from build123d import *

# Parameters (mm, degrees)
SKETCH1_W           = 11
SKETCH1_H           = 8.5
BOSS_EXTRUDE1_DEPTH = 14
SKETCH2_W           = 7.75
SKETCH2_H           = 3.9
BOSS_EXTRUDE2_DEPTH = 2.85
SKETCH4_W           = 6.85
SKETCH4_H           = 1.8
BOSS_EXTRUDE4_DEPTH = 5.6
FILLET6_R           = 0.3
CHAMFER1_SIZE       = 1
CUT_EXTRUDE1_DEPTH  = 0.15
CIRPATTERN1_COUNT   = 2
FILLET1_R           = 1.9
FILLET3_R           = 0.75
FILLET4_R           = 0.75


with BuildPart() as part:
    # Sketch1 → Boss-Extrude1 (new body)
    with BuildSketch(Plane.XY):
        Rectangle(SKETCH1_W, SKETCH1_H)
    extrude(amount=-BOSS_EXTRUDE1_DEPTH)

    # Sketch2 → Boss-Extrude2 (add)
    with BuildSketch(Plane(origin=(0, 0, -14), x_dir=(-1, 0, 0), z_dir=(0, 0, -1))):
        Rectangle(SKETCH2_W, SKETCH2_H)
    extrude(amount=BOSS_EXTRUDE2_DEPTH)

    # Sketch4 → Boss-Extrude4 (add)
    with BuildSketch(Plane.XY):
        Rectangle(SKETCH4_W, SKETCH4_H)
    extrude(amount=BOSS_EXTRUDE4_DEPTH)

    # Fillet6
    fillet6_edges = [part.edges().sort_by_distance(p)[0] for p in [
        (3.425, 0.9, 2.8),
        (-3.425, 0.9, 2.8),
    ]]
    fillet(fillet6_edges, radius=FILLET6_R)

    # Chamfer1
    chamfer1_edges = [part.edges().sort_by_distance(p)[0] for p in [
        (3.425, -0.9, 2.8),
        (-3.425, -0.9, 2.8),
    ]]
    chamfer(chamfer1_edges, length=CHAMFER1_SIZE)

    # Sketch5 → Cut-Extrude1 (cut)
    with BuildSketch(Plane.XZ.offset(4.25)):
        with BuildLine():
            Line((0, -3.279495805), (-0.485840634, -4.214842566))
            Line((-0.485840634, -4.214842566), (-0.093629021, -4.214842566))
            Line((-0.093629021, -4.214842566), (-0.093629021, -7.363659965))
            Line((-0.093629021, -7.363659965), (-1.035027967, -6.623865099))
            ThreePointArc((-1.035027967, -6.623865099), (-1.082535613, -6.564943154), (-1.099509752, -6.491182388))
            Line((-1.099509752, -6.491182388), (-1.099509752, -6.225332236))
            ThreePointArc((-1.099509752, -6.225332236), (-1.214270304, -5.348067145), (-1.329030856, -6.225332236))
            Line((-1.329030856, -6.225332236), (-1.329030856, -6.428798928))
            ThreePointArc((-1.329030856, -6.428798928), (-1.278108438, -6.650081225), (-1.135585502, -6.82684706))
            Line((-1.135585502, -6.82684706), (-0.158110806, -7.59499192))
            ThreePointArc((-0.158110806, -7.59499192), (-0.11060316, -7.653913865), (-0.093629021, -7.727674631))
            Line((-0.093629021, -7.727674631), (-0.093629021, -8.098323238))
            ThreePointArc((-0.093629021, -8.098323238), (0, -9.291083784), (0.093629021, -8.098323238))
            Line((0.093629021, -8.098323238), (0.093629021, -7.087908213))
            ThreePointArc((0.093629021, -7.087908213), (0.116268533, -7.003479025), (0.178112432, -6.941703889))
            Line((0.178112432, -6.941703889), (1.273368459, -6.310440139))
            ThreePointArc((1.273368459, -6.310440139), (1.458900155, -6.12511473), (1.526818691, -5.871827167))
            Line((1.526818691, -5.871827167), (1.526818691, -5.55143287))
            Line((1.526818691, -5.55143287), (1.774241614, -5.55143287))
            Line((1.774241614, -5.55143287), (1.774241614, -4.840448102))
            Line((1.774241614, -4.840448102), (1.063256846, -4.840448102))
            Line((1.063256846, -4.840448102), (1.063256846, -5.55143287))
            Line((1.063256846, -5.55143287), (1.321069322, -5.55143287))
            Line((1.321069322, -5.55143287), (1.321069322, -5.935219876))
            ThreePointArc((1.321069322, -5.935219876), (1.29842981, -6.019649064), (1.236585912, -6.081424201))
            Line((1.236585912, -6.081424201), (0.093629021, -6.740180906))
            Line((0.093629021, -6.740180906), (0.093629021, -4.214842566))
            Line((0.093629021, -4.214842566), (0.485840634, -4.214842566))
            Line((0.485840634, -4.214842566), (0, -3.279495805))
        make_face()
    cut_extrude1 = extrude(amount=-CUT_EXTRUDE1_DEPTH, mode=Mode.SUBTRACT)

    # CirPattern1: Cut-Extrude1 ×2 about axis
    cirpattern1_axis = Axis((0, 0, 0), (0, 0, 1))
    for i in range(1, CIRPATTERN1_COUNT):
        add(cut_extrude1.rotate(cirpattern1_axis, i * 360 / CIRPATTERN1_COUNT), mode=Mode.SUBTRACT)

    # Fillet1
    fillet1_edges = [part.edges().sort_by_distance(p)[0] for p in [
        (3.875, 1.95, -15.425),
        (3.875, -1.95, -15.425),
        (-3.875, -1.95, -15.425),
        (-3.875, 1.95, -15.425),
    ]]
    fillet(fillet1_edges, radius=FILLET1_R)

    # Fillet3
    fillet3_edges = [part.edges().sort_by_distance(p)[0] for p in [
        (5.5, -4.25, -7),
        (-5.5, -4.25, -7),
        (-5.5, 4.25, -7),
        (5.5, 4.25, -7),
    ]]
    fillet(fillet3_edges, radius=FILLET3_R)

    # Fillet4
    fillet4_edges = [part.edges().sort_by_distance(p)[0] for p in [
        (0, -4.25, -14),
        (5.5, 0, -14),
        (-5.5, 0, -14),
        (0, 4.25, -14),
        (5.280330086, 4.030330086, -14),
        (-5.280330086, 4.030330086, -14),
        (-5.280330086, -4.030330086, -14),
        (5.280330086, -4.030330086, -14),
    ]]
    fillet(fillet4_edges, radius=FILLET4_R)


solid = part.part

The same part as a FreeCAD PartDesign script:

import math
import FreeCAD as App
import Part
import Sketcher
from FreeCAD import Vector


def edges_at(feature, points):
    """Names of the edges that pass closest to the given points."""
    edges = feature.Shape.Edges
    near = lambda p: min(range(len(edges)), key=lambda i: edges[i].distToShape(Part.Vertex(*p))[0])
    return sorted({f"Edge{near(p) + 1}" for p in points})

doc = App.newDocument("Part")
params = doc.addObject("Spreadsheet::Sheet", "Params")
for row, (alias, value) in enumerate([
    ("sketch1_width", "11 mm"),
    ("sketch1_height", "8.5 mm"),
    ("pad1_length", "14 mm"),
    ("sketch2_height", "3.9 mm"),
    ("sketch2_width", "7.75 mm"),
    ("pad2_length", "2.85 mm"),
    ("sketch3_height", "1.8 mm"),
    ("sketch3_width", "6.85 mm"),
    ("pad3_length", "5.6 mm"),
    ("fillet_radius", "0.3 mm"),
    ("chamfer_size", "1 mm"),
    ("pocket1_length", "0.15 mm"),
    ("fillet2_radius", "1.9 mm"),
    ("fillet3_radius", "0.75 mm"),
    ("fillet4_radius", "0.75 mm"),
], start=1):
    params.set(f"A{row}", alias)
    params.set(f"B{row}", "=" + value)
    params.setAlias(f"B{row}", alias)

body = doc.addObject("PartDesign::Body", "Body")

# Sketch on XY plane
sketch1 = body.newObject("Sketcher::SketchObject", "Sketch")
sketch1.AttachmentSupport = (doc.getObject("XY_Plane"), [""])
sketch1.MapMode = "FlatFace"
sketch1.addGeometry(Part.LineSegment(Vector(-5.5, 4.25, 0), Vector(-5.5, -4.25, 0)), False)
sketch1.addGeometry(Part.LineSegment(Vector(-5.5, -4.25, 0), Vector(5.5, -4.25, 0)), False)
sketch1.addGeometry(Part.LineSegment(Vector(5.5, -4.25, 0), Vector(5.5, 4.25, 0)), False)
sketch1.addGeometry(Part.LineSegment(Vector(5.5, 4.25, 0), Vector(-5.5, 4.25, 0)), False)
sketch1.addConstraint(Sketcher.Constraint("Coincident", 0, 2, 1, 1))
sketch1.addConstraint(Sketcher.Constraint("Coincident", 1, 2, 2, 1))
sketch1.addConstraint(Sketcher.Constraint("Coincident", 2, 2, 3, 1))
sketch1.addConstraint(Sketcher.Constraint("Coincident", 3, 2, 0, 1))
sketch1.addConstraint(Sketcher.Constraint("Vertical", 0))
sketch1.addConstraint(Sketcher.Constraint("Horizontal", 1))
sketch1.addConstraint(Sketcher.Constraint("Vertical", 2))
sketch1.addConstraint(Sketcher.Constraint("Horizontal", 3))
sketch1.addConstraint(Sketcher.Constraint("Symmetric", 0, 2, 2, 2, -1, 1))
sketch1.addConstraint(Sketcher.Constraint("DistanceX", 1, 1, 1, 2, 11.0))
sketch1.addConstraint(Sketcher.Constraint("DistanceY", 0, 2, 0, 1, 8.5))
sketch1.setExpression("Constraints[9]", "Params.sketch1_width")
sketch1.setExpression("Constraints[10]", "Params.sketch1_height")
pad1 = body.newObject("PartDesign::Pad", "Pad")
pad1.Profile = sketch1
pad1.setExpression("Length", "Params.pad1_length")
pad1.Reversed = True

# Sketch on XY plane
sketch2 = body.newObject("Sketcher::SketchObject", "Sketch001")
sketch2.AttachmentSupport = (doc.getObject("XY_Plane"), [""])
sketch2.MapMode = "FlatFace"
sketch2.AttachmentOffset = App.Placement(Vector(0, 0, -14), App.Rotation())
sketch2.addGeometry(Part.LineSegment(Vector(3.875, 1.95, 0), Vector(3.875, -1.95, 0)), False)
sketch2.addGeometry(Part.LineSegment(Vector(3.875, -1.95, 0), Vector(-3.875, -1.95, 0)), False)
sketch2.addGeometry(Part.LineSegment(Vector(-3.875, -1.95, 0), Vector(-3.875, 1.95, 0)), False)
sketch2.addGeometry(Part.LineSegment(Vector(-3.875, 1.95, 0), Vector(3.875, 1.95, 0)), False)
sketch2.addConstraint(Sketcher.Constraint("Coincident", 0, 2, 1, 1))
sketch2.addConstraint(Sketcher.Constraint("Coincident", 1, 2, 2, 1))
sketch2.addConstraint(Sketcher.Constraint("Coincident", 2, 2, 3, 1))
sketch2.addConstraint(Sketcher.Constraint("Coincident", 3, 2, 0, 1))
sketch2.addConstraint(Sketcher.Constraint("Vertical", 0))
sketch2.addConstraint(Sketcher.Constraint("Horizontal", 1))
sketch2.addConstraint(Sketcher.Constraint("Vertical", 2))
sketch2.addConstraint(Sketcher.Constraint("Horizontal", 3))
sketch2.addConstraint(Sketcher.Constraint("Symmetric", 0, 2, 2, 2, -1, 1))
sketch2.addConstraint(Sketcher.Constraint("DistanceY", 0, 2, 0, 1, 3.9))
sketch2.addConstraint(Sketcher.Constraint("DistanceX", 1, 2, 1, 1, 7.75))
sketch2.setExpression("Constraints[9]", "Params.sketch2_height")
sketch2.setExpression("Constraints[10]", "Params.sketch2_width")
pad2 = body.newObject("PartDesign::Pad", "Pad001")
pad2.Profile = sketch2
pad2.setExpression("Length", "Params.pad2_length")
pad2.Reversed = True

# Sketch on XY plane
sketch3 = body.newObject("Sketcher::SketchObject", "Sketch002")
sketch3.AttachmentSupport = (doc.getObject("XY_Plane"), [""])
sketch3.MapMode = "FlatFace"
sketch3.addGeometry(Part.LineSegment(Vector(-3.425, 0.9, 0), Vector(-3.425, -0.9, 0)), False)
sketch3.addGeometry(Part.LineSegment(Vector(-3.425, -0.9, 0), Vector(3.425, -0.9, 0)), False)
sketch3.addGeometry(Part.LineSegment(Vector(3.425, -0.9, 0), Vector(3.425, 0.9, 0)), False)
sketch3.addGeometry(Part.LineSegment(Vector(3.425, 0.9, 0), Vector(-3.425, 0.9, 0)), False)
sketch3.addConstraint(Sketcher.Constraint("Coincident", 0, 2, 1, 1))
sketch3.addConstraint(Sketcher.Constraint("Coincident", 1, 2, 2, 1))
sketch3.addConstraint(Sketcher.Constraint("Coincident", 2, 2, 3, 1))
sketch3.addConstraint(Sketcher.Constraint("Coincident", 3, 2, 0, 1))
sketch3.addConstraint(Sketcher.Constraint("Vertical", 0))
sketch3.addConstraint(Sketcher.Constraint("Horizontal", 1))
sketch3.addConstraint(Sketcher.Constraint("Vertical", 2))
sketch3.addConstraint(Sketcher.Constraint("Horizontal", 3))
sketch3.addConstraint(Sketcher.Constraint("Symmetric", 0, 2, 2, 2, -1, 1))
sketch3.addConstraint(Sketcher.Constraint("DistanceY", 0, 2, 0, 1, 1.8))
sketch3.addConstraint(Sketcher.Constraint("DistanceX", 1, 1, 1, 2, 6.85))
sketch3.setExpression("Constraints[9]", "Params.sketch3_height")
sketch3.setExpression("Constraints[10]", "Params.sketch3_width")
pad3 = body.newObject("PartDesign::Pad", "Pad002")
pad3.Profile = sketch3
pad3.setExpression("Length", "Params.pad3_length")
doc.recompute()

fillet = body.newObject("PartDesign::Fillet", "Fillet")
fillet.Base = (pad3, edges_at(pad3, [(3.425, 0.9, 2.8), (-3.425, 0.9, 2.8)]))
fillet.setExpression("Radius", "Params.fillet_radius")
doc.recompute()

chamfer = body.newObject("PartDesign::Chamfer", "Chamfer")
chamfer.Base = (fillet, edges_at(fillet, [(3.425, -0.9, 2.8), (-3.425, -0.9, 2.8)]))
chamfer.setExpression("Size", "Params.chamfer_size")

# Sketch on XZ plane
sketch4 = body.newObject("Sketcher::SketchObject", "Sketch003")
sketch4.AttachmentSupport = (doc.getObject("XZ_Plane"), [""])
sketch4.MapMode = "FlatFace"
sketch4.AttachmentOffset = App.Placement(Vector(0, 0, 4.25), App.Rotation())
sketch4.addGeometry(Part.LineSegment(Vector(0, -3.279496, 0), Vector(-0.485841, -4.214843, 0)), False)
sketch4.addGeometry(Part.LineSegment(Vector(-0.485841, -4.214843, 0), Vector(-0.093629, -4.214843, 0)), False)
sketch4.addGeometry(Part.LineSegment(Vector(-0.093629, -4.214843, 0), Vector(-0.093629, -7.36366, 0)), False)
sketch4.addGeometry(Part.LineSegment(Vector(-0.093629, -7.36366, 0), Vector(-1.035028, -6.623865, 0)), False)
sketch4.addGeometry(Part.ArcOfCircle(Part.Circle(Vector(-0.93076, -6.491182, 0), Vector(0, 0, 1), 0.16875), math.radians(180), math.radians(231.838098)), False)
sketch4.addGeometry(Part.LineSegment(Vector(-1.09951, -6.491182, 0), Vector(-1.09951, -6.225332, 0)), False)
sketch4.addGeometry(Part.ArcOfCircle(Part.Circle(Vector(-1.21427, -5.794206, 0), Vector(0, 0, 1), 0.446139), math.radians(-75.094202), math.radians(255.094202)), False)
sketch4.addGeometry(Part.LineSegment(Vector(-1.329031, -6.225332, 0), Vector(-1.329031, -6.428799, 0)), False)
sketch4.addGeometry(Part.ArcOfCircle(Part.Circle(Vector(-0.822781, -6.428799, 0), Vector(0, 0, 1), 0.50625), math.radians(-180), math.radians(-128.161903)), False)
sketch4.addGeometry(Part.LineSegment(Vector(-1.135586, -6.826847, 0), Vector(-0.158111, -7.594992, 0)), False)
sketch4.addGeometry(Part.ArcOfCircle(Part.Circle(Vector(-0.262379, -7.727675, 0), Vector(0, 0, 1), 0.16875), math.radians(0), math.radians(51.838098)), False)
sketch4.addGeometry(Part.LineSegment(Vector(-0.093629, -7.727675, 0), Vector(-0.093629, -8.098323, 0)), False)
sketch4.addGeometry(Part.ArcOfCircle(Part.Circle(Vector(0, -8.691029, 0), Vector(0, 0, 1), 0.600055), math.radians(98.976772), math.radians(441.023228)), False)
sketch4.addGeometry(Part.LineSegment(Vector(0.093629, -8.098323, 0), Vector(0.093629, -7.087908, 0)), False)
sketch4.addGeometry(Part.ArcOfCircle(Part.Circle(Vector(0.262379, -7.087908, 0), Vector(0, 0, 1), 0.16875), math.radians(119.957506), math.radians(180)), False)
sketch4.addGeometry(Part.LineSegment(Vector(0.178112, -6.941704, 0), Vector(1.273368, -6.31044, 0)), False)
sketch4.addGeometry(Part.ArcOfCircle(Part.Circle(Vector(1.020569, -5.871827, 0), Vector(0, 0, 1), 0.50625), math.radians(-60.042494), math.radians(0)), False)
sketch4.addGeometry(Part.LineSegment(Vector(1.526819, -5.871827, 0), Vector(1.526819, -5.551433, 0)), False)
sketch4.addGeometry(Part.LineSegment(Vector(1.526819, -5.551433, 0), Vector(1.774242, -5.551433, 0)), False)
sketch4.addGeometry(Part.LineSegment(Vector(1.774242, -5.551433, 0), Vector(1.774242, -4.840448, 0)), False)
sketch4.addGeometry(Part.LineSegment(Vector(1.774242, -4.840448, 0), Vector(1.063257, -4.840448, 0)), False)
sketch4.addGeometry(Part.LineSegment(Vector(1.063257, -4.840448, 0), Vector(1.063257, -5.551433, 0)), False)
sketch4.addGeometry(Part.LineSegment(Vector(1.063257, -5.551433, 0), Vector(1.321069, -5.551433, 0)), False)
sketch4.addGeometry(Part.LineSegment(Vector(1.321069, -5.551433, 0), Vector(1.321069, -5.93522, 0)), False)
sketch4.addGeometry(Part.ArcOfCircle(Part.Circle(Vector(1.152319, -5.93522, 0), Vector(0, 0, 1), 0.16875), math.radians(-60.042493), math.radians(0)), False)
sketch4.addGeometry(Part.LineSegment(Vector(1.236586, -6.081424, 0), Vector(0.093629, -6.740181, 0)), False)
sketch4.addGeometry(Part.LineSegment(Vector(0.093629, -6.740181, 0), Vector(0.093629, -4.214843, 0)), False)
sketch4.addGeometry(Part.LineSegment(Vector(0.093629, -4.214843, 0), Vector(0.485841, -4.214843, 0)), False)
sketch4.addGeometry(Part.LineSegment(Vector(0.485841, -4.214843, 0), Vector(0, -3.279496, 0)), False)
sketch4.addConstraint(Sketcher.Constraint("Coincident", 0, 2, 1, 1))
sketch4.addConstraint(Sketcher.Constraint("Coincident", 1, 2, 2, 1))
sketch4.addConstraint(Sketcher.Constraint("Coincident", 2, 2, 3, 1))
sketch4.addConstraint(Sketcher.Constraint("Tangent", 3, 2, 4, 2))
sketch4.addConstraint(Sketcher.Constraint("Tangent", 4, 1, 5, 1))
sketch4.addConstraint(Sketcher.Constraint("Coincident", 5, 2, 6, 1))
sketch4.addConstraint(Sketcher.Constraint("Coincident", 6, 2, 7, 1))
sketch4.addConstraint(Sketcher.Constraint("Tangent", 7, 2, 8, 1))
sketch4.addConstraint(Sketcher.Constraint("Tangent", 8, 2, 9, 1))
sketch4.addConstraint(Sketcher.Constraint("Tangent", 9, 2, 10, 2))
sketch4.addConstraint(Sketcher.Constraint("Tangent", 10, 1, 11, 1))
sketch4.addConstraint(Sketcher.Constraint("Coincident", 11, 2, 12, 1))
sketch4.addConstraint(Sketcher.Constraint("Coincident", 12, 2, 13, 1))
sketch4.addConstraint(Sketcher.Constraint("Tangent", 13, 2, 14, 2))
sketch4.addConstraint(Sketcher.Constraint("Tangent", 14, 1, 15, 1))
sketch4.addConstraint(Sketcher.Constraint("Tangent", 15, 2, 16, 1))
sketch4.addConstraint(Sketcher.Constraint("Tangent", 16, 2, 17, 1))
sketch4.addConstraint(Sketcher.Constraint("Coincident", 17, 2, 18, 1))
sketch4.addConstraint(Sketcher.Constraint("Coincident", 18, 2, 19, 1))
sketch4.addConstraint(Sketcher.Constraint("Coincident", 19, 2, 20, 1))
sketch4.addConstraint(Sketcher.Constraint("Coincident", 20, 2, 21, 1))
sketch4.addConstraint(Sketcher.Constraint("Coincident", 21, 2, 22, 1))
sketch4.addConstraint(Sketcher.Constraint("Coincident", 22, 2, 23, 1))
sketch4.addConstraint(Sketcher.Constraint("Tangent", 23, 2, 24, 2))
sketch4.addConstraint(Sketcher.Constraint("Tangent", 24, 1, 25, 1))
sketch4.addConstraint(Sketcher.Constraint("Coincident", 25, 2, 26, 1))
sketch4.addConstraint(Sketcher.Constraint("Coincident", 26, 2, 27, 1))
sketch4.addConstraint(Sketcher.Constraint("Coincident", 27, 2, 28, 1))
sketch4.addConstraint(Sketcher.Constraint("Coincident", 28, 2, 0, 1))
sketch4.addConstraint(Sketcher.Constraint("Horizontal", 1))
sketch4.addConstraint(Sketcher.Constraint("Vertical", 2))
sketch4.addConstraint(Sketcher.Constraint("Vertical", 5))
sketch4.addConstraint(Sketcher.Constraint("Vertical", 7))
sketch4.addConstraint(Sketcher.Constraint("Vertical", 11))
sketch4.addConstraint(Sketcher.Constraint("Vertical", 13))
sketch4.addConstraint(Sketcher.Constraint("Vertical", 17))
sketch4.addConstraint(Sketcher.Constraint("Horizontal", 18))
sketch4.addConstraint(Sketcher.Constraint("Vertical", 19))
sketch4.addConstraint(Sketcher.Constraint("Horizontal", 20))
sketch4.addConstraint(Sketcher.Constraint("Vertical", 21))
sketch4.addConstraint(Sketcher.Constraint("Horizontal", 22))
sketch4.addConstraint(Sketcher.Constraint("Vertical", 23))
sketch4.addConstraint(Sketcher.Constraint("Vertical", 26))
sketch4.addConstraint(Sketcher.Constraint("Horizontal", 27))
sketch4.addConstraint(Sketcher.Constraint("Equal", 4, 10))
sketch4.addConstraint(Sketcher.Constraint("Equal", 10, 14))
sketch4.addConstraint(Sketcher.Constraint("Equal", 8, 16))
sketch4.addConstraint(Sketcher.Constraint("Equal", 14, 24))
sketch4.addConstraint(Sketcher.Constraint("Symmetric", 11, 2, 12, 2, -2))
sketch4.addConstraint(Sketcher.Constraint("Symmetric", 1, 2, 26, 2, -2))
sketch4.addConstraint(Sketcher.Constraint("PointOnObject", 28, 2, -2))
sketch4.addConstraint(Sketcher.Constraint("Parallel", 3, 9))
sketch4.addConstraint(Sketcher.Constraint("Parallel", 15, 25))
sketch4.addConstraint(Sketcher.Constraint("Horizontal", 5, 2, 6, 2))
sketch4.addConstraint(Sketcher.Constraint("Horizontal", 18, 2, 21, 2))
sketch4.addConstraint(Sketcher.Constraint("Vertical", 2, 2, 10, 1))
sketch4.addConstraint(Sketcher.Constraint("Equal", 1, 27))
sketch4.addConstraint(Sketcher.Constraint("Equal", 20, 19))
sketch4.addConstraint(Sketcher.Constraint("Radius", 4, 0.16875))
sketch4.addConstraint(Sketcher.Constraint("Radius", 6, 0.446139))
sketch4.addConstraint(Sketcher.Constraint("Radius", 8, 0.50625))
sketch4.addConstraint(Sketcher.Constraint("Distance", 0, 1.053999))
sketch4.addConstraint(Sketcher.Constraint("Radius", 12, 0.600055))
sketch4.addConstraint(Sketcher.Constraint("Distance", 3, 1.1973))
sketch4.addConstraint(Sketcher.Constraint("DistanceX", 1, 1, 1, 2, 0.392212))
sketch4.addConstraint(Sketcher.Constraint("DistanceY", 5, 1, 5, 2, 0.26585))
sketch4.addConstraint(Sketcher.Constraint("DistanceY", 11, 2, 11, 1, 0.370649))
sketch4.addConstraint(Sketcher.Constraint("DistanceY", 26, 1, 26, 2, 2.525338))
sketch4.addConstraint(Sketcher.Constraint("DistanceY", 8, 3, -1, 1, 6.428799))
sketch4.addConstraint(Sketcher.Constraint("DistanceX", 8, 3, 10, 3, 0.560402))
sketch4.addConstraint(Sketcher.Constraint("DistanceX", 8, 3, 24, 3, 1.9751))
sketch4.addConstraint(Sketcher.Constraint("DistanceX", 3, 2, 2, 2, 0.941399))
sketch4.addConstraint(Sketcher.Constraint("DistanceX", 16, 3, 15, 2, 0.2528))
sketch4.addConstraint(Sketcher.Constraint("DistanceX", 24, 3, 16, 2, 0.374499))
sketch4.addConstraint(Sketcher.Constraint("DistanceX", 27, 2, 19, 2, 1.288401))
sketch4.addConstraint(Sketcher.Constraint("Distance", 15, 1.264152))
sketch4.addConstraint(Sketcher.Constraint("DistanceX", 20, 2, 20, 1, 0.710985))
sketch4.addConstraint(Sketcher.Constraint("DistanceY", 2, 2, 2, 1, 3.148817))
sketch4.addConstraint(Sketcher.Constraint("DistanceY", 7, 2, 7, 1, 0.203467))
sketch4.addConstraint(Sketcher.Constraint("DistanceY", 13, 1, 13, 2, 1.010415))
sketch4.addConstraint(Sketcher.Constraint("DistanceY", 17, 1, 17, 2, 0.320394))
pocket1 = body.newObject("PartDesign::Pocket", "Pocket")
pocket1.Profile = sketch4
pocket1.setExpression("Length", "Params.pocket1_length")
doc.recompute()

polarpattern = body.newObject("PartDesign::PolarPattern", "PolarPattern")
polarpattern.Originals = [pocket1]
polarpattern.Axis = (doc.getObject("Z_Axis"), [""])
polarpattern.Angle = 360
polarpattern.Occurrences = 2
body.Tip = polarpattern
doc.recompute()

fillet2 = body.newObject("PartDesign::Fillet", "Fillet001")
fillet2.Base = (polarpattern, edges_at(polarpattern, [
    (3.875, 1.95, -15.425),
    (3.875, -1.95, -15.425),
    (-3.875, -1.95, -15.425),
    (-3.875, 1.95, -15.425),
]))
fillet2.setExpression("Radius", "Params.fillet2_radius")
doc.recompute()

fillet3 = body.newObject("PartDesign::Fillet", "Fillet002")
fillet3.Base = (fillet2, edges_at(fillet2, [
    (5.5, -4.25, -7),
    (-5.5, -4.25, -7),
    (-5.5, 4.25, -7),
    (5.5, 4.25, -7),
]))
fillet3.setExpression("Radius", "Params.fillet3_radius")
doc.recompute()

fillet4 = body.newObject("PartDesign::Fillet", "Fillet003")
fillet4.Base = (fillet3, edges_at(fillet3, [
    (0, -4.25, -14),
    (5.5, 0, -14),
    (-5.5, 0, -14),
    (0, 4.25, -14),
    (5.28, 4.03, -14),
    (-5.28, 4.03, -14),
    (-5.28, -4.03, -14),
    (5.28, -4.03, -14),
]))
fillet4.setExpression("Radius", "Params.fillet4_radius")

doc.recompute()
